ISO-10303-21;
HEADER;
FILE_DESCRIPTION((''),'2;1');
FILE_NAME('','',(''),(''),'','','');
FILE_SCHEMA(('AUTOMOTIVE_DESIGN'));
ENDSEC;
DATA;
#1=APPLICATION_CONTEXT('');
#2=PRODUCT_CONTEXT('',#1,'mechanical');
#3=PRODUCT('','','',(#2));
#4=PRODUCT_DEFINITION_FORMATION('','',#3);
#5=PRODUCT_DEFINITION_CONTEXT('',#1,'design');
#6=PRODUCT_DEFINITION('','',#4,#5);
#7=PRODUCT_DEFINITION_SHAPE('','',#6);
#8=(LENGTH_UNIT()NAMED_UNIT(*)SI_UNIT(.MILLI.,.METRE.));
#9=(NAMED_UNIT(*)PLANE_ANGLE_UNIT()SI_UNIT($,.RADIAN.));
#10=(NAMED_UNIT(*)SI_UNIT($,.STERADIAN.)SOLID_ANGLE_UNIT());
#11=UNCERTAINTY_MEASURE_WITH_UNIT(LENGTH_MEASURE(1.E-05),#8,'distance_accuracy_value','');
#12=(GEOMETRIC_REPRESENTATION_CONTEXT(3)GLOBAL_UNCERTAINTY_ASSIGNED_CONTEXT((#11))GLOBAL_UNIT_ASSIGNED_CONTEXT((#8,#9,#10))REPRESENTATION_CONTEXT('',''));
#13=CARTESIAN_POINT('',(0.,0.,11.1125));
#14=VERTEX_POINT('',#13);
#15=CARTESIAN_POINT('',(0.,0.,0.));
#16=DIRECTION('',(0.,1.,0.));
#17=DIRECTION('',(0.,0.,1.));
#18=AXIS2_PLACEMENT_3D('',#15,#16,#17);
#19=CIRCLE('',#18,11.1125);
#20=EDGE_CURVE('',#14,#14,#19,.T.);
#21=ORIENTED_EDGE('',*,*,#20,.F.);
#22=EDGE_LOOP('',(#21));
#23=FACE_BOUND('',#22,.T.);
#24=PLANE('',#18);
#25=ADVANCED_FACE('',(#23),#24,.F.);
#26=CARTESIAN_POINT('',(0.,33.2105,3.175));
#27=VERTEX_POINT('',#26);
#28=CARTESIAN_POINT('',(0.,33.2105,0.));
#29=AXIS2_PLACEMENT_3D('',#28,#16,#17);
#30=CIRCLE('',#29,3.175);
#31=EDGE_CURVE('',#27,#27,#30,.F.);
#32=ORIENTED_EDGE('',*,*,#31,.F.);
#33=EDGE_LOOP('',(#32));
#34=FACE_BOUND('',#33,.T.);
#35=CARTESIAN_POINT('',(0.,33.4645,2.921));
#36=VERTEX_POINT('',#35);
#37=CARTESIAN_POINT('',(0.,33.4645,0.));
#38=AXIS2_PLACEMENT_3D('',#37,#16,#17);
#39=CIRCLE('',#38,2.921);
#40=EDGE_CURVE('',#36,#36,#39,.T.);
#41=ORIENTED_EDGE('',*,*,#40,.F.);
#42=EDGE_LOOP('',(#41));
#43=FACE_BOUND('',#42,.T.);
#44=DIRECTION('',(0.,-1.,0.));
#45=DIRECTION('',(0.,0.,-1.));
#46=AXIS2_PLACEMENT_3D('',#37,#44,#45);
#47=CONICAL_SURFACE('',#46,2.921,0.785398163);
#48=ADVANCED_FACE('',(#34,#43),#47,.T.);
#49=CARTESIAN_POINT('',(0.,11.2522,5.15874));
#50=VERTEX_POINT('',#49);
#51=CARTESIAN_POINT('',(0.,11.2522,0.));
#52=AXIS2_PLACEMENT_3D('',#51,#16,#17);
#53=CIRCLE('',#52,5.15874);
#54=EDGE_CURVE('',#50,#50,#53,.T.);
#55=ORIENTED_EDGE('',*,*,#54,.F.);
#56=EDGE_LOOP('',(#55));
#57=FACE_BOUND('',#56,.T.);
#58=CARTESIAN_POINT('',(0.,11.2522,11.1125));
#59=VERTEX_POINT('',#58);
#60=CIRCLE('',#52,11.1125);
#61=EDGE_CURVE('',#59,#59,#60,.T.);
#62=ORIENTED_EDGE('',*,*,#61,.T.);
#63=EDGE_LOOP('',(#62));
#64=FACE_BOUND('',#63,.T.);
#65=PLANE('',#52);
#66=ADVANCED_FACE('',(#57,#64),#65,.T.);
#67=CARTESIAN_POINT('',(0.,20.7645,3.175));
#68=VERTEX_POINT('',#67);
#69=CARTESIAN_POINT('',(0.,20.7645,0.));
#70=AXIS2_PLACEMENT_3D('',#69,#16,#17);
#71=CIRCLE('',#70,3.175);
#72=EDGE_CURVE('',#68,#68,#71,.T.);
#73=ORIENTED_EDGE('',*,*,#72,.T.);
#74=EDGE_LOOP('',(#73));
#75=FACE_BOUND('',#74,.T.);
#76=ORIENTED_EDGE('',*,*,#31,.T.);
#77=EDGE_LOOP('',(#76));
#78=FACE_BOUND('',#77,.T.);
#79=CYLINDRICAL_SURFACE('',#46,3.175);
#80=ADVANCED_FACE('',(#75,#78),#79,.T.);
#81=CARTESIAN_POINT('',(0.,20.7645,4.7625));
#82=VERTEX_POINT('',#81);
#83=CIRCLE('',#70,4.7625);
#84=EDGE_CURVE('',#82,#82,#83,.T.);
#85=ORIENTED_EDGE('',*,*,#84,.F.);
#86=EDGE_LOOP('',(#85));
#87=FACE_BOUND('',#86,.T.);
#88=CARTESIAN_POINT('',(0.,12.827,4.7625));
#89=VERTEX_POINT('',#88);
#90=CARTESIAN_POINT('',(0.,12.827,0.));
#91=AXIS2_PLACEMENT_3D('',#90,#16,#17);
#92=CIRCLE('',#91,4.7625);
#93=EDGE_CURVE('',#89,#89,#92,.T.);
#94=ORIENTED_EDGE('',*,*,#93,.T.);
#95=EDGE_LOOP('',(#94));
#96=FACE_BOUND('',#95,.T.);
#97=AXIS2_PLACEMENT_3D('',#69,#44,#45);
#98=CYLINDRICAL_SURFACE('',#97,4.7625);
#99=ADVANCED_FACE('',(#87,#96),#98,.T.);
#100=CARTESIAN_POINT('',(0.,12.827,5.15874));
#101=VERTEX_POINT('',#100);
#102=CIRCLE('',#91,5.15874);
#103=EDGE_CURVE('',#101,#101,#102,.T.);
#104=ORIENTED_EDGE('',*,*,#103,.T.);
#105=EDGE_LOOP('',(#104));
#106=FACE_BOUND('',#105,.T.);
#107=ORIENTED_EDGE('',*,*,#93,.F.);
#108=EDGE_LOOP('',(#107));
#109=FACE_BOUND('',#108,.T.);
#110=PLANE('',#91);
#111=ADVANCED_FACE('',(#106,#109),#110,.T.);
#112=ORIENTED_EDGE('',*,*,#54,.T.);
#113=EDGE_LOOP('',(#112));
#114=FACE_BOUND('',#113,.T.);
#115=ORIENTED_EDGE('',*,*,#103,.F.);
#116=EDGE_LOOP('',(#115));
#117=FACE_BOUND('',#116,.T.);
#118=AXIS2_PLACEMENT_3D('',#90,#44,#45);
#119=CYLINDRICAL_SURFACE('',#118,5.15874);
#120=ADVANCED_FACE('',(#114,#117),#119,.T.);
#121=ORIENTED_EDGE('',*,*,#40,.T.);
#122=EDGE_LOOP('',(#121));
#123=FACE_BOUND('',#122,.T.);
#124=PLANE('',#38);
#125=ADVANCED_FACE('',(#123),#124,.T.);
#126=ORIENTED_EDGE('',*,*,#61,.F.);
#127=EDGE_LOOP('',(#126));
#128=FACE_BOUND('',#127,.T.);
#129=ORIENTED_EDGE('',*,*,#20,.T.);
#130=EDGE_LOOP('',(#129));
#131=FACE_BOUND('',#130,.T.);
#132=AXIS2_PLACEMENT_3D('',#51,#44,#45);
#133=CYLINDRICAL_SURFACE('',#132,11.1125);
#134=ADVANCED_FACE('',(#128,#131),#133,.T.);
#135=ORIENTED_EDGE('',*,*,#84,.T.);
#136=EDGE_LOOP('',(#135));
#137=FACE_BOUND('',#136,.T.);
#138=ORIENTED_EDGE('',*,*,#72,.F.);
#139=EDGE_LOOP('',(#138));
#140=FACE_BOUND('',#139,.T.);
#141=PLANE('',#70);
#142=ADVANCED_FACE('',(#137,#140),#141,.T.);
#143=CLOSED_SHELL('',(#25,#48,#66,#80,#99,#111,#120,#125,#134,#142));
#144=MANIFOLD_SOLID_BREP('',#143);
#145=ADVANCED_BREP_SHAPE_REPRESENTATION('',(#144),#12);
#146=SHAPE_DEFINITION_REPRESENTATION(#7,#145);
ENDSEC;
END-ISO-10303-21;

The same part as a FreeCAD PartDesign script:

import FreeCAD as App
import Part
import Sketcher
Q = App.Units.Quantity


def edges_at(feature, points):
    """Names of the edges that pass closest to the given points."""
    edges = feature.Shape.Edges
    near = lambda p: min(range(len(edges)), key=lambda i: edges[i].distToShape(Part.Vertex(*p))[0])
    return sorted({f"Edge{near(p) + 1}" for p in points})

doc = App.newDocument("Part")
params = doc.addObject("Spreadsheet::Sheet", "Params")
for row, (alias, value) in enumerate([
    ("sketch1_diameter", "0.875 in"),
    ("pad1_length", "0.443 in"),
    ("pad2_length", "0.062 in"),
    ("sketch3_diameter", "0.375 in"),
    ("pad3_length", "0.3125 in"),
    ("sketch4_diameter", "0.25 in"),
    ("pad4_length", "0.5 in"),
    ("chamfer_size", "0.01 in"),
], start=1):
    params.set(f"A{row}", alias)
    params.set(f"B{row}", "=" + value)
    params.setAlias(f"B{row}", alias)

body = doc.addObject("PartDesign::Body", "Body")

# Sketch on XZ plane
sketch1 = doc.addObject("Sketcher::SketchObject", "Sketch")
body.addObject(sketch1)
sketch1.AttachmentSupport = (doc.XZ_Plane, [""])
sketch1.MapMode = "FlatFace"
sketch1.addGeometry(Part.Circle(App.Vector(0, 0, 0), App.Vector(0, 0, 1), 11.1125), False)
sketch1.addConstraint([
    Sketcher.Constraint("Coincident", 0, 3, -1, 1),
    Sketcher.Constraint("Diameter", 0, Q("0.875 in")),
])
sketch1.setExpression("Constraints[1]", "Params.sketch1_diameter")
pad1 = doc.addObject("PartDesign::Pad", "Pad")
body.addObject(pad1)
pad1.Profile = sketch1
pad1.setExpression("Length", "Params.pad1_length")
pad1.Reversed = True

# Sketch on XZ plane
sketch2 = doc.addObject("Sketcher::SketchObject", "Sketch001")
body.addObject(sketch2)
sketch2.AttachmentSupport = (doc.XZ_Plane, [""])
sketch2.MapMode = "FlatFace"
sketch2.AttachmentOffset = App.Placement(App.Vector(0, 0, -0.443 * 25.4), App.Rotation())
sketch2.addGeometry(Part.Circle(App.Vector(0, 0, 0), App.Vector(0, 0, 1), 5.15874), False)
sketch2.addConstraint([
    Sketcher.Constraint("Coincident", 0, 3, -1, 1),
    Sketcher.Constraint("Diameter", 0, Q("0.4062 in")),
])
pad2 = doc.addObject("PartDesign::Pad", "Pad001")
body.addObject(pad2)
pad2.Profile = sketch2
pad2.setExpression("Length", "Params.pad2_length")
pad2.Reversed = True

# Sketch on XZ plane
sketch3 = doc.addObject("Sketcher::SketchObject", "Sketch002")
body.addObject(sketch3)
sketch3.AttachmentSupport = (doc.XZ_Plane, [""])
sketch3.MapMode = "FlatFace"
sketch3.AttachmentOffset = App.Placement(App.Vector(0, 0, -0.505 * 25.4), App.Rotation())
sketch3.addGeometry(Part.Circle(App.Vector(0, 0, 0), App.Vector(0, 0, 1), 4.7625), False)
sketch3.addConstraint([
    Sketcher.Constraint("Coincident", 0, 3, -1, 1),
    Sketcher.Constraint("Diameter", 0, Q("0.375 in")),
])
sketch3.setExpression("Constraints[1]", "Params.sketch3_diameter")
pad3 = doc.addObject("PartDesign::Pad", "Pad002")
body.addObject(pad3)
pad3.Profile = sketch3
pad3.setExpression("Length", "Params.pad3_length")
pad3.Reversed = True

# Sketch on XZ plane
sketch4 = doc.addObject("Sketcher::SketchObject", "Sketch003")
body.addObject(sketch4)
sketch4.AttachmentSupport = (doc.XZ_Plane, [""])
sketch4.MapMode = "FlatFace"
sketch4.AttachmentOffset = App.Placement(App.Vector(0, 0, -0.8175 * 25.4), App.Rotation())
sketch4.addGeometry(Part.Circle(App.Vector(0, 0, 0), App.Vector(0, 0, 1), 3.175), False)
sketch4.addConstraint([
    Sketcher.Constraint("Coincident", 0, 3, -1, 1),
    Sketcher.Constraint("Diameter", 0, Q("0.25 in")),
])
sketch4.setExpression("Constraints[1]", "Params.sketch4_diameter")
pad4 = doc.addObject("PartDesign::Pad", "Pad003")
body.addObject(pad4)
pad4.Profile = sketch4
pad4.setExpression("Length", "Params.pad4_length")
pad4.Reversed = True
doc.recompute()

chamfer = doc.addObject("PartDesign::Chamfer", "Chamfer")
body.addObject(chamfer)
chamfer.Base = (pad4, edges_at(pad4, [(0, 33.465, -3.175)]))
chamfer.setExpression("Size", "Params.chamfer_size")

doc.recompute()
